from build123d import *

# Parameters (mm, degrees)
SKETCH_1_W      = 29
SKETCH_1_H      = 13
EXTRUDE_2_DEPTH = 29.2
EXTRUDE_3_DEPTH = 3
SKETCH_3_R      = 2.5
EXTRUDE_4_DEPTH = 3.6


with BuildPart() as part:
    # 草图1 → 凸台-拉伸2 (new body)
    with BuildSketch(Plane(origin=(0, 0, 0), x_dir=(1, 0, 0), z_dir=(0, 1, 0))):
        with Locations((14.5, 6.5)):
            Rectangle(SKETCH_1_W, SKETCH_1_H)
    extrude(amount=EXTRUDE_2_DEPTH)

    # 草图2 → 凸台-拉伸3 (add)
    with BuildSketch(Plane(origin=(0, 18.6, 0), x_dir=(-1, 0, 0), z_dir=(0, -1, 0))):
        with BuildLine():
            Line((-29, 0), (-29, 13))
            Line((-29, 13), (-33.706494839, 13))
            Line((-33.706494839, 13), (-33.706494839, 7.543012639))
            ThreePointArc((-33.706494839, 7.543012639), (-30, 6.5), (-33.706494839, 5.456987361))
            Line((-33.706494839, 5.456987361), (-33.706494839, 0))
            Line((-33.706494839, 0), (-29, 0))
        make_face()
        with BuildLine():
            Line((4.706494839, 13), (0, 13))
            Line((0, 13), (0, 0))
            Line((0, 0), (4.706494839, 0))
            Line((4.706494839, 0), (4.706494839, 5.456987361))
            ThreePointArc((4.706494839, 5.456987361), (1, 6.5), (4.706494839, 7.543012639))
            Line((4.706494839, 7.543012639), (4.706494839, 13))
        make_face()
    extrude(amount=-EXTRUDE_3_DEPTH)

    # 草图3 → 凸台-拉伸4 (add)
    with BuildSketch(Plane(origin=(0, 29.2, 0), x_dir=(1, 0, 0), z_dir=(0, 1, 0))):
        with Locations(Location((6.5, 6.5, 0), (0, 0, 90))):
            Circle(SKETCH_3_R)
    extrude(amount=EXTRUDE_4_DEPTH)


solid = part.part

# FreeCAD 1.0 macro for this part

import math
import FreeCAD as App
import Part
import Sketcher
from FreeCAD import Vector


def add_polygon(sketch, points):
    """Adds a closed chain of lines whose ends are joined by coincident constraints."""
    first, n = sketch.GeometryCount, len(points)
    for a, b in zip(points, points[1:] + points[:1]):
        sketch.addGeometry(Part.LineSegment(App.Vector(*a, 0), App.Vector(*b, 0)), False)
    for i in range(n):
        sketch.addConstraint(Sketcher.Constraint("Coincident", first + i, 2, first + (i + 1) % n, 1))

doc = App.newDocument("Part")
params = doc.addObject("Spreadsheet::Sheet", "Params")
for row, (alias, value) in enumerate([
    ("sketch1_width", "29 mm"),
    ("sketch1_height", "13 mm"),
    ("pad1_length", "29.2 mm"),
    ("sketch2_radius", "2 mm"),
    ("sketch2_height", "13 mm"),
    ("pad2_length", "3 mm"),
    ("sketch3_diameter", "5 mm"),
    ("pad3_length", "3.6 mm"),
], start=1):
    params.set(f"A{row}", alias)
    params.set(f"B{row}", "=" + value)
    params.setAlias(f"B{row}", alias)

body = doc.addObject("PartDesign::Body", "Body")

# Sketch on XZ plane
sketch1 = body.newObject("Sketcher::SketchObject", "Sketch")
sketch1.AttachmentSupport = (doc.getObject("XZ_Plane"), [""])
sketch1.MapMode = "FlatFace"
add_polygon(sketch1, [(0, -13), (0, 0), (29, 0), (29, -13)])  # lines 0-3
sketch1.addConstraint([
    Sketcher.Constraint("Vertical", 0),
    Sketcher.Constraint("Horizontal", 1),
    Sketcher.Constraint("Vertical", 2),
    Sketcher.Constraint("Horizontal", 3),
    Sketcher.Constraint("Coincident", 0, 2, -1, 1),
    Sketcher.Constraint("DistanceX", 1, 1, 1, 2, 29.0),
    Sketcher.Constraint("DistanceY", 0, 1, 0, 2, 13.0),
])
sketch1.setExpression("Constraints[9]", "Params.sketch1_width")
sketch1.setExpression("Constraints[10]", "Params.sketch1_height")
pad1 = body.newObject("PartDesign::Pad", "Pad")
pad1.Profile = sketch1
pad1.setExpression("Length", "Params.pad1_length")
pad1.Reversed = True

# Sketch on XZ plane
sketch2 = body.newObject("Sketcher::SketchObject", "Sketch001")
sketch2.AttachmentSupport = (doc.getObject("XZ_Plane"), [""])
sketch2.MapMode = "FlatFace"
sketch2.AttachmentOffset = App.Placement(Vector(0, 0, -18.6), App.Rotation())
sketch2.addGeometry([
    Part.LineSegment(Vector(29, 0, 0), Vector(29, -13, 0)),  # 0
    Part.LineSegment(Vector(29, -13, 0), Vector(33.7, -13, 0)),  # 1
    Part.LineSegment(Vector(33.7, -13, 0), Vector(33.7, -7.5, 0)),  # 2
    Part.ArcOfCircle(Part.Circle(Vector(32, -6.5, 0), Vector(0, 0, 1), 2), math.radians(31), math.radians(329)),  # 3
    Part.LineSegment(Vector(33.7, -5.5, 0), Vector(33.7, 0, 0)),  # 4
    Part.LineSegment(Vector(33.7, 0, 0), Vector(29, 0, 0)),  # 5
    Part.LineSegment(Vector(-4.7, -13, 0), Vector(0, -13, 0)),  # 6
    Part.LineSegment(Vector(0, -13, 0), Vector(0, 0, 0)),  # 7
    Part.LineSegment(Vector(0, 0, 0), Vector(-4.7, 0, 0)),  # 8
    Part.LineSegment(Vector(-4.7, 0, 0), Vector(-4.7, -5.5, 0)),  # 9
    Part.ArcOfCircle(Part.Circle(Vector(-3, -6.5, 0), Vector(0, 0, 1), 2), math.radians(-149), math.radians(149)),  # 10
    Part.LineSegment(Vector(-4.7, -7.5, 0), Vector(-4.7, -13, 0)),  # 11
], False)
sketch2.addConstraint([
    Sketcher.Constraint("Coincident", 0, 2, 1, 1),
    Sketcher.Constraint("Coincident", 1, 2, 2, 1),
    Sketcher.Constraint("Coincident", 2, 2, 3, 2),
    Sketcher.Constraint("Coincident", 3, 1, 4, 1),
    Sketcher.Constraint("Coincident", 4, 2, 5, 1),
    Sketcher.Constraint("Coincident", 5, 2, 0, 1),
    Sketcher.Constraint("Coincident", 6, 2, 7, 1),
    Sketcher.Constraint("Coincident", 7, 2, 8, 1),
    Sketcher.Constraint("Coincident", 8, 2, 9, 1),
    Sketcher.Constraint("Coincident", 9, 2, 10, 2),
    Sketcher.Constraint("Coincident", 10, 1, 11, 1),
    Sketcher.Constraint("Coincident", 11, 2, 6, 1),
    Sketcher.Constraint("Vertical", 0),
    Sketcher.Constraint("Horizontal", 1),
    Sketcher.Constraint("Vertical", 2),
    Sketcher.Constraint("Vertical", 4),
    Sketcher.Constraint("Horizontal", 5),
    Sketcher.Constraint("Horizontal", 6),
    Sketcher.Constraint("Vertical", 7),
    Sketcher.Constraint("Horizontal", 8),
    Sketcher.Constraint("Vertical", 9),
    Sketcher.Constraint("Vertical", 11),
    Sketcher.Constraint("Coincident", 7, 2, -1, 1),
    Sketcher.Constraint("Equal", 3, 10),
    Sketcher.Constraint("PointOnObject", 4, 2, -1),
    Sketcher.Constraint("Horizontal", 3, 3, 10, 3),
    Sketcher.Constraint("Horizontal", 1, 2, 6, 2),
    Sketcher.Constraint("Horizontal", 3, 1, 9, 2),
    Sketcher.Constraint("Horizontal", 2, 2, 10, 1),
    Sketcher.Constraint("Vertical", 2, 2, 3, 1),
    Sketcher.Constraint("Equal", 5, 6),
    Sketcher.Constraint("Equal", 2, 4),
    Sketcher.Constraint("Radius", 3, 2.0),
    Sketcher.Constraint("DistanceY", 0, 2, 0, 1, 13.0),
    Sketcher.Constraint("DistanceX", -1, 1, 3, 3, 32.0),
    Sketcher.Constraint("DistanceX", 10, 3, -1, 1, 3.0),
    Sketcher.Constraint("DistanceX", 1, 1, 1, 2, 4.706495),
])
sketch2.setExpression("Constraints[32]", "Params.sketch2_radius")
sketch2.setExpression("Constraints[33]", "Params.sketch2_height")
pad2 = body.newObject("PartDesign::Pad", "Pad001")
pad2.Profile = sketch2
pad2.setExpression("Length", "Params.pad2_length")
pad2.Reversed = True

# Sketch on XZ plane
sketch3 = body.newObject("Sketcher::SketchObject", "Sketch002")
sketch3.AttachmentSupport = (doc.getObject("XZ_Plane"), [""])
sketch3.MapMode = "FlatFace"
sketch3.AttachmentOffset = App.Placement(Vector(0, 0, -29.2), App.Rotation())
sketch3.addGeometry(Part.Circle(Vector(6.5, -6.5, 0), Vector(0, 0, 1), 2.5), False)
sketch3.addConstraint([
    Sketcher.Constraint("Diameter", 0, 5.0),
    Sketcher.Constraint("DistanceX", -1, 1, 0, 3, 6.5),
    Sketcher.Constraint("DistanceY", 0, 3, -1, 1, 6.5),
])
sketch3.setExpression("Constraints[0]", "Params.sketch3_diameter")
pad3 = body.newObject("PartDesign::Pad", "Pad002")
pad3.Profile = sketch3
pad3.setExpression("Length", "Params.pad3_length")
pad3.Reversed = True

doc.recompute()
